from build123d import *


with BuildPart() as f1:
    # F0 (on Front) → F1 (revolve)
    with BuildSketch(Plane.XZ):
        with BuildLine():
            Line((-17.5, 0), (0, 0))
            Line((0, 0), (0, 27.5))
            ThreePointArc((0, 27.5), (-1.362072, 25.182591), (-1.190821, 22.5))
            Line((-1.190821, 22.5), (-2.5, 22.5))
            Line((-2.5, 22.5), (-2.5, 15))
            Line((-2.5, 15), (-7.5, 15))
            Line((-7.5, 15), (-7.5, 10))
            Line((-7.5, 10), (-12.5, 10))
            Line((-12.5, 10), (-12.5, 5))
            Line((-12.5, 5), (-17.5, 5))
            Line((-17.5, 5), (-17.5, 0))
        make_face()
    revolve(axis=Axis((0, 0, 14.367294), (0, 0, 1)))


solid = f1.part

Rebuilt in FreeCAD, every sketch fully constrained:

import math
import FreeCAD as App
import Part
import Sketcher
from FreeCAD import Vector
Q = App.Units.Quantity

doc = App.newDocument("Part")
body = doc.addObject("PartDesign::Body", "Body")

# Sketch on XZ plane
sketch1 = body.newObject("Sketcher::SketchObject", "Sketch")
sketch1.AttachmentSupport = (doc.getObject("XZ_Plane"), [""])
sketch1.MapMode = "FlatFace"
sketch1.addGeometry(Part.LineSegment(Vector(-17.5, 0, 0), Vector(0, 0, 0)), False)
sketch1.addGeometry(Part.LineSegment(Vector(0, 0, 0), Vector(0, 27.5, 0)), False)
sketch1.addGeometry(Part.ArcOfCircle(Part.Circle(Vector(3.097374, 24.120511, 0), Vector(0, 0, 1), 4.584176), math.radians(132.505921), math.radians(200.701605)), False)
sketch1.addGeometry(Part.LineSegment(Vector(-1.190821, 22.5, 0), Vector(-2.5, 22.5, 0)), False)
sketch1.addGeometry(Part.LineSegment(Vector(-2.5, 22.5, 0), Vector(-2.5, 15, 0)), False)
sketch1.addGeometry(Part.LineSegment(Vector(-2.5, 15, 0), Vector(-7.5, 15, 0)), False)
sketch1.addGeometry(Part.LineSegment(Vector(-7.5, 15, 0), Vector(-7.5, 10, 0)), False)
sketch1.addGeometry(Part.LineSegment(Vector(-7.5, 10, 0), Vector(-12.5, 10, 0)), False)
sketch1.addGeometry(Part.LineSegment(Vector(-12.5, 10, 0), Vector(-12.5, 5, 0)), False)
sketch1.addGeometry(Part.LineSegment(Vector(-12.5, 5, 0), Vector(-17.5, 5, 0)), False)
sketch1.addGeometry(Part.LineSegment(Vector(-17.5, 5, 0), Vector(-17.5, 0, 0)), False)
sketch1.addConstraint(Sketcher.Constraint("Coincident", 0, 2, 1, 1))
sketch1.addConstraint(Sketcher.Constraint("Coincident", 1, 2, 2, 1))
sketch1.addConstraint(Sketcher.Constraint("Coincident", 2, 2, 3, 1))
sketch1.addConstraint(Sketcher.Constraint("Coincident", 3, 2, 4, 1))
sketch1.addConstraint(Sketcher.Constraint("Coincident", 4, 2, 5, 1))
sketch1.addConstraint(Sketcher.Constraint("Coincident", 5, 2, 6, 1))
sketch1.addConstraint(Sketcher.Constraint("Coincident", 6, 2, 7, 1))
sketch1.addConstraint(Sketcher.Constraint("Coincident", 7, 2, 8, 1))
sketch1.addConstraint(Sketcher.Constraint("Coincident", 8, 2, 9, 1))
sketch1.addConstraint(Sketcher.Constraint("Coincident", 9, 2, 10, 1))
sketch1.addConstraint(Sketcher.Constraint("Coincident", 10, 2, 0, 1))
sketch1.addConstraint(Sketcher.Constraint("Horizontal", 0))
sketch1.addConstraint(Sketcher.Constraint("Vertical", 1))
sketch1.addConstraint(Sketcher.Constraint("Horizontal", 3))
sketch1.addConstraint(Sketcher.Constraint("Vertical", 4))
sketch1.addConstraint(Sketcher.Constraint("Horizontal", 5))
sketch1.addConstraint(Sketcher.Constraint("Vertical", 6))
sketch1.addConstraint(Sketcher.Constraint("Horizontal", 7))
sketch1.addConstraint(Sketcher.Constraint("Vertical", 8))
sketch1.addConstraint(Sketcher.Constraint("Horizontal", 9))
sketch1.addConstraint(Sketcher.Constraint("Vertical", 10))
sketch1.addConstraint(Sketcher.Constraint("Coincident", 0, 2, -1, 1))
sketch1.addConstraint(Sketcher.Constraint("Equal", 5, 7))
sketch1.addConstraint(Sketcher.Constraint("Equal", 7, 9))
sketch1.addConstraint(Sketcher.Constraint("Equal", 9, 6))
sketch1.addConstraint(Sketcher.Constraint("Equal", 6, 8))
sketch1.addConstraint(Sketcher.Constraint("Equal", 8, 10))
sketch1.addConstraint(Sketcher.Constraint("DistanceX", 5, 2, 5, 1, Q("5 mm")))
sketch1.addConstraint(Sketcher.Constraint("DistanceX", 0, 1, 0, 2, Q("17.5 mm")))
sketch1.addConstraint(Sketcher.Constraint("DistanceY", 1, 1, 1, 2, Q("27.5 mm")))
sketch1.addConstraint(Sketcher.Constraint("DistanceY", 4, 2, 4, 1, Q("7.5 mm")))
sketch1.addConstraint(Sketcher.Constraint("Radius", 2, Q("4.584176 mm")))
sketch1.addConstraint(Sketcher.Constraint("DistanceX", 3, 2, 3, 1, Q("1.309179 mm")))
revolution = body.newObject("PartDesign::Revolution", "Revolution")
revolution.Profile = sketch1
revolution.ReferenceAxis = (sketch1, ["V_Axis"])
revolution.Angle = 360

doc.recompute()
